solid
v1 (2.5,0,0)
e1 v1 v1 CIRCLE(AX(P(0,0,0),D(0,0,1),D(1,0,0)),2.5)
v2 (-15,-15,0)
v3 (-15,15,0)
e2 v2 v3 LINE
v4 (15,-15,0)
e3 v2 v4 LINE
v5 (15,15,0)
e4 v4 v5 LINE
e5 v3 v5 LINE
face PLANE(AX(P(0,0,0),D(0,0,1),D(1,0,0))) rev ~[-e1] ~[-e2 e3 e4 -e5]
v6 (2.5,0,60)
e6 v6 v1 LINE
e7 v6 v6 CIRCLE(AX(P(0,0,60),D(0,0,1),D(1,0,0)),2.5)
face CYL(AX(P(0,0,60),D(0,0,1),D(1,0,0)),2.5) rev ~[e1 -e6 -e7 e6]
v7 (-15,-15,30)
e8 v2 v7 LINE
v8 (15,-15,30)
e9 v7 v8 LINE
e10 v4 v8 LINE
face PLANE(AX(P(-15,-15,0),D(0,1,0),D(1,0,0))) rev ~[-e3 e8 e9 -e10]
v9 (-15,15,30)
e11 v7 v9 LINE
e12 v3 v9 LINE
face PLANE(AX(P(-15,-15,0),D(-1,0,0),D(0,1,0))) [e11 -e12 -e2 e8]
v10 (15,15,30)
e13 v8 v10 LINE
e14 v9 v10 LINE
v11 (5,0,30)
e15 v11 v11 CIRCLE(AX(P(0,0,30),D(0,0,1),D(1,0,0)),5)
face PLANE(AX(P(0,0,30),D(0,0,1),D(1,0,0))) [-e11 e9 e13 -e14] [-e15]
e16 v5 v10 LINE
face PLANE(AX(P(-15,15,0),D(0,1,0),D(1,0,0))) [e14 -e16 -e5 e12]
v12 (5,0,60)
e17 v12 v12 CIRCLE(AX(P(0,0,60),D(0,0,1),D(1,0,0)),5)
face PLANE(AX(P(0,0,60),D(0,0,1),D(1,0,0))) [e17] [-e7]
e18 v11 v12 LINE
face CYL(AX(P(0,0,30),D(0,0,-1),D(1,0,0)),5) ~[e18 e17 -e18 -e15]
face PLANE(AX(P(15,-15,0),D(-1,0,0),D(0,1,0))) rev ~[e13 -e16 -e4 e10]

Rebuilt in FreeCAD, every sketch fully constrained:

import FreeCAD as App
import Part
import Sketcher

V = App.Vector


def add_polygon(sketch, points):
    """Adds a closed chain of lines whose ends are joined by coincident constraints."""
    first, n = sketch.GeometryCount, len(points)
    for a, b in zip(points, points[1:] + points[:1]):
        sketch.addGeometry(Part.LineSegment(App.Vector(*a, 0), App.Vector(*b, 0)), False)
    for i in range(n):
        sketch.addConstraint(Sketcher.Constraint("Coincident", first + i, 2, first + (i + 1) % n, 1))

doc = App.newDocument("Part")
body = doc.addObject("PartDesign::Body", "Body")

# Sketch on XY plane
sketch1 = doc.addObject("Sketcher::SketchObject", "Sketch")
body.addObject(sketch1)
sketch1.AttachmentSupport = (doc.XY_Plane, [""])
sketch1.MapMode = "FlatFace"
add_polygon(sketch1, [(-15, 15), (-15, -15), (15, -15), (15, 15)])  # lines 0-3
sketch1.addConstraint(Sketcher.Constraint("Vertical", 0))
sketch1.addConstraint(Sketcher.Constraint("Horizontal", 1))
sketch1.addConstraint(Sketcher.Constraint("Vertical", 2))
sketch1.addConstraint(Sketcher.Constraint("Horizontal", 3))
sketch1.addConstraint(Sketcher.Constraint("Symmetric", 0, 2, 2, 2, -1, 1))
sketch1.addConstraint(Sketcher.Constraint("Equal", 3, 0))
sketch1.addConstraint(Sketcher.Constraint("DistanceX", 1, 1, 1, 2, 30.0))
pad1 = doc.addObject("PartDesign::Pad", "Pad")
body.addObject(pad1)
pad1.Profile = sketch1
pad1.Length = 30

# Sketch on XY plane
sketch2 = doc.addObject("Sketcher::SketchObject", "Sketch001")
body.addObject(sketch2)
sketch2.AttachmentSupport = (doc.XY_Plane, [""])
sketch2.MapMode = "FlatFace"
sketch2.AttachmentOffset = App.Placement(V(0, 0, 30), App.Rotation())
sketch2.addGeometry(Part.Circle(V(0, 0, 0), V(0, 0, 1), 5), False)
sketch2.addConstraint(Sketcher.Constraint("Coincident", 0, 3, -1, 1))
sketch2.addConstraint(Sketcher.Constraint("Diameter", 0, 10.0))
pad2 = doc.addObject("PartDesign::Pad", "Pad001")
body.addObject(pad2)
pad2.Profile = sketch2
pad2.Length = 30

# Sketch on XY plane
sketch3 = doc.addObject("Sketcher::SketchObject", "Sketch002")
body.addObject(sketch3)
sketch3.AttachmentSupport = (doc.XY_Plane, [""])
sketch3.MapMode = "FlatFace"
sketch3.AttachmentOffset = App.Placement(V(0, 0, 60), App.Rotation())
sketch3.addGeometry(Part.Circle(V(0, 0, 0), V(0, 0, 1), 2.5), False)
sketch3.addConstraint(Sketcher.Constraint("Coincident", 0, 3, -1, 1))
sketch3.addConstraint(Sketcher.Constraint("Diameter", 0, 5.0))
pocket1 = doc.addObject("PartDesign::Pocket", "Pocket")
body.addObject(pocket1)
pocket1.Profile = sketch3
pocket1.Type = "ThroughAll"

doc.recompute()
